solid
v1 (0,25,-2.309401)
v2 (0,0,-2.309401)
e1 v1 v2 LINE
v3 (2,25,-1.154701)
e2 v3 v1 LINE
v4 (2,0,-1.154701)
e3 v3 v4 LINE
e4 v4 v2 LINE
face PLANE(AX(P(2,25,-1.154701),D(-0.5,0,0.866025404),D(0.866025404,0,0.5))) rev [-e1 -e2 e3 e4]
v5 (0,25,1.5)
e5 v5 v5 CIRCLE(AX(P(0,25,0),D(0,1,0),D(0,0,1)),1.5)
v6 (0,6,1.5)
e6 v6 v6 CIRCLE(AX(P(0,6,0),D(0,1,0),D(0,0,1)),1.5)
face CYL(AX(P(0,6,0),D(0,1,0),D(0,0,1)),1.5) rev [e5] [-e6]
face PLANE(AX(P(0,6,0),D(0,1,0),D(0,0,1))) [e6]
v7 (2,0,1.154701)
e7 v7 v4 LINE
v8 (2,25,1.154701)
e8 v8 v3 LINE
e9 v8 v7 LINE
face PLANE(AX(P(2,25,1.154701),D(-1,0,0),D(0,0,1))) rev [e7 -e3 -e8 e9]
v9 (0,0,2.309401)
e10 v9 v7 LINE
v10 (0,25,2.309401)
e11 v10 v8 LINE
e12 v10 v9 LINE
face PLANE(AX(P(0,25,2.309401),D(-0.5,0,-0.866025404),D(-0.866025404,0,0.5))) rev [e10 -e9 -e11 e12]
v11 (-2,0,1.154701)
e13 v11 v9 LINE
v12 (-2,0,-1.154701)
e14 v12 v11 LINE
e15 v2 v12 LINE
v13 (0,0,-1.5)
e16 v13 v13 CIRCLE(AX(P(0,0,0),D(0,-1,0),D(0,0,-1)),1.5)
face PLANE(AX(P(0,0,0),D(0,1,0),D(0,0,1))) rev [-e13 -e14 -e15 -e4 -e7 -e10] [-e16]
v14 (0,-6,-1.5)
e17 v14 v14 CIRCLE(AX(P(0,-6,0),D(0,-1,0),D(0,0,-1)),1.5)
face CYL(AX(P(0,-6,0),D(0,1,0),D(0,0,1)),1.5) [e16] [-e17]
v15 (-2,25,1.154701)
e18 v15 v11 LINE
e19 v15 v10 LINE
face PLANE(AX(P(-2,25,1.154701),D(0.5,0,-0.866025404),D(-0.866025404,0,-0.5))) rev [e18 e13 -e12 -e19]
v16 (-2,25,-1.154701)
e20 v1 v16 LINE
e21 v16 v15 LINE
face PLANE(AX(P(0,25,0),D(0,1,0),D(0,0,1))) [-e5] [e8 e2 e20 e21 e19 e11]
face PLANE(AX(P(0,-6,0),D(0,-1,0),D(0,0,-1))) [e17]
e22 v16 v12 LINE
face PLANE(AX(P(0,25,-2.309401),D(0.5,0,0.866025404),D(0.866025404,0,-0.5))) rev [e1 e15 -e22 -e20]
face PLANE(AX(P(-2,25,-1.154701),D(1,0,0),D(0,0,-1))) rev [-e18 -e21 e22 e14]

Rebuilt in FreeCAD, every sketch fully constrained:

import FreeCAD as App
import Part
import Sketcher
Q = App.Units.Quantity


def add_polygon(sketch, points):
    """Adds a closed chain of lines whose ends are joined by coincident constraints."""
    first, n = sketch.GeometryCount, len(points)
    for a, b in zip(points, points[1:] + points[:1]):
        sketch.addGeometry(Part.LineSegment(App.Vector(*a, 0), App.Vector(*b, 0)), False)
    for i in range(n):
        sketch.addConstraint(Sketcher.Constraint("Coincident", first + i, 2, first + (i + 1) % n, 1))

doc = App.newDocument("Part")
body = doc.addObject("PartDesign::Body", "Body")

# Sketch on XZ plane
sketch1 = body.newObject("Sketcher::SketchObject", "Sketch")
sketch1.AttachmentSupport = (doc.getObject("XZ_Plane"), [""])
sketch1.MapMode = "FlatFace"
add_polygon(sketch1, [(0, 2.3), (2, 1.2), (2, -1.2), (0, -2.3), (-2, -1.2), (-2, 1.2)])  # lines 0-5
sketch1.addConstraint(Sketcher.Constraint("Vertical", 1))
sketch1.addConstraint(Sketcher.Constraint("Vertical", 4))
sketch1.addConstraint(Sketcher.Constraint("Symmetric", 0, 2, 3, 2, -1, 1))
sketch1.addConstraint(Sketcher.Constraint("Symmetric", 2, 2, 5, 2, -1, 1))
sketch1.addConstraint(Sketcher.Constraint("PointOnObject", 2, 2, -2))
sketch1.addConstraint(Sketcher.Constraint("Parallel", 2, 5))
sketch1.addConstraint(Sketcher.Constraint("Horizontal", 1, 2, 3, 2))
sketch1.addConstraint(Sketcher.Constraint("Angle", 0, Q("-30 deg")))
sketch1.addConstraint(Sketcher.Constraint("DistanceX", -1, 1, 0, 2, 2.0))
sketch1.addConstraint(Sketcher.Constraint("DistanceY", 1, 2, 1, 1, 2.309401))
pad1 = body.newObject("PartDesign::Pad", "Pad")
pad1.Profile = sketch1
pad1.Length = 25
pad1.Reversed = True

# Sketch on XZ plane
sketch2 = body.newObject("Sketcher::SketchObject", "Sketch001")
sketch2.AttachmentSupport = (doc.getObject("XZ_Plane"), [""])
sketch2.MapMode = "FlatFace"
sketch2.AttachmentOffset = App.Placement(App.Vector(0, 0, -25), App.Rotation())
sketch2.addGeometry(Part.Circle(App.Vector(0, 0, 0), App.Vector(0, 0, 1), 1.5), False)
sketch2.addConstraint(Sketcher.Constraint("Coincident", 0, 3, -1, 1))
sketch2.addConstraint(Sketcher.Constraint("Diameter", 0, 3.0))
pocket1 = body.newObject("PartDesign::Pocket", "Pocket")
pocket1.Profile = sketch2
pocket1.Length = 19
pocket1.Reversed = True

# Sketch on XZ plane
sketch3 = body.newObject("Sketcher::SketchObject", "Sketch002")
sketch3.AttachmentSupport = (doc.getObject("XZ_Plane"), [""])
sketch3.MapMode = "FlatFace"
sketch3.addGeometry(Part.Circle(App.Vector(0, 0, 0), App.Vector(0, 0, 1), 1.5), False)
sketch3.addConstraint(Sketcher.Constraint("Coincident", 0, 3, -1, 1))
sketch3.addConstraint(Sketcher.Constraint("Diameter", 0, 3.0))
pad2 = body.newObject("PartDesign::Pad", "Pad001")
pad2.Profile = sketch3
pad2.Length = 6

doc.recompute()
